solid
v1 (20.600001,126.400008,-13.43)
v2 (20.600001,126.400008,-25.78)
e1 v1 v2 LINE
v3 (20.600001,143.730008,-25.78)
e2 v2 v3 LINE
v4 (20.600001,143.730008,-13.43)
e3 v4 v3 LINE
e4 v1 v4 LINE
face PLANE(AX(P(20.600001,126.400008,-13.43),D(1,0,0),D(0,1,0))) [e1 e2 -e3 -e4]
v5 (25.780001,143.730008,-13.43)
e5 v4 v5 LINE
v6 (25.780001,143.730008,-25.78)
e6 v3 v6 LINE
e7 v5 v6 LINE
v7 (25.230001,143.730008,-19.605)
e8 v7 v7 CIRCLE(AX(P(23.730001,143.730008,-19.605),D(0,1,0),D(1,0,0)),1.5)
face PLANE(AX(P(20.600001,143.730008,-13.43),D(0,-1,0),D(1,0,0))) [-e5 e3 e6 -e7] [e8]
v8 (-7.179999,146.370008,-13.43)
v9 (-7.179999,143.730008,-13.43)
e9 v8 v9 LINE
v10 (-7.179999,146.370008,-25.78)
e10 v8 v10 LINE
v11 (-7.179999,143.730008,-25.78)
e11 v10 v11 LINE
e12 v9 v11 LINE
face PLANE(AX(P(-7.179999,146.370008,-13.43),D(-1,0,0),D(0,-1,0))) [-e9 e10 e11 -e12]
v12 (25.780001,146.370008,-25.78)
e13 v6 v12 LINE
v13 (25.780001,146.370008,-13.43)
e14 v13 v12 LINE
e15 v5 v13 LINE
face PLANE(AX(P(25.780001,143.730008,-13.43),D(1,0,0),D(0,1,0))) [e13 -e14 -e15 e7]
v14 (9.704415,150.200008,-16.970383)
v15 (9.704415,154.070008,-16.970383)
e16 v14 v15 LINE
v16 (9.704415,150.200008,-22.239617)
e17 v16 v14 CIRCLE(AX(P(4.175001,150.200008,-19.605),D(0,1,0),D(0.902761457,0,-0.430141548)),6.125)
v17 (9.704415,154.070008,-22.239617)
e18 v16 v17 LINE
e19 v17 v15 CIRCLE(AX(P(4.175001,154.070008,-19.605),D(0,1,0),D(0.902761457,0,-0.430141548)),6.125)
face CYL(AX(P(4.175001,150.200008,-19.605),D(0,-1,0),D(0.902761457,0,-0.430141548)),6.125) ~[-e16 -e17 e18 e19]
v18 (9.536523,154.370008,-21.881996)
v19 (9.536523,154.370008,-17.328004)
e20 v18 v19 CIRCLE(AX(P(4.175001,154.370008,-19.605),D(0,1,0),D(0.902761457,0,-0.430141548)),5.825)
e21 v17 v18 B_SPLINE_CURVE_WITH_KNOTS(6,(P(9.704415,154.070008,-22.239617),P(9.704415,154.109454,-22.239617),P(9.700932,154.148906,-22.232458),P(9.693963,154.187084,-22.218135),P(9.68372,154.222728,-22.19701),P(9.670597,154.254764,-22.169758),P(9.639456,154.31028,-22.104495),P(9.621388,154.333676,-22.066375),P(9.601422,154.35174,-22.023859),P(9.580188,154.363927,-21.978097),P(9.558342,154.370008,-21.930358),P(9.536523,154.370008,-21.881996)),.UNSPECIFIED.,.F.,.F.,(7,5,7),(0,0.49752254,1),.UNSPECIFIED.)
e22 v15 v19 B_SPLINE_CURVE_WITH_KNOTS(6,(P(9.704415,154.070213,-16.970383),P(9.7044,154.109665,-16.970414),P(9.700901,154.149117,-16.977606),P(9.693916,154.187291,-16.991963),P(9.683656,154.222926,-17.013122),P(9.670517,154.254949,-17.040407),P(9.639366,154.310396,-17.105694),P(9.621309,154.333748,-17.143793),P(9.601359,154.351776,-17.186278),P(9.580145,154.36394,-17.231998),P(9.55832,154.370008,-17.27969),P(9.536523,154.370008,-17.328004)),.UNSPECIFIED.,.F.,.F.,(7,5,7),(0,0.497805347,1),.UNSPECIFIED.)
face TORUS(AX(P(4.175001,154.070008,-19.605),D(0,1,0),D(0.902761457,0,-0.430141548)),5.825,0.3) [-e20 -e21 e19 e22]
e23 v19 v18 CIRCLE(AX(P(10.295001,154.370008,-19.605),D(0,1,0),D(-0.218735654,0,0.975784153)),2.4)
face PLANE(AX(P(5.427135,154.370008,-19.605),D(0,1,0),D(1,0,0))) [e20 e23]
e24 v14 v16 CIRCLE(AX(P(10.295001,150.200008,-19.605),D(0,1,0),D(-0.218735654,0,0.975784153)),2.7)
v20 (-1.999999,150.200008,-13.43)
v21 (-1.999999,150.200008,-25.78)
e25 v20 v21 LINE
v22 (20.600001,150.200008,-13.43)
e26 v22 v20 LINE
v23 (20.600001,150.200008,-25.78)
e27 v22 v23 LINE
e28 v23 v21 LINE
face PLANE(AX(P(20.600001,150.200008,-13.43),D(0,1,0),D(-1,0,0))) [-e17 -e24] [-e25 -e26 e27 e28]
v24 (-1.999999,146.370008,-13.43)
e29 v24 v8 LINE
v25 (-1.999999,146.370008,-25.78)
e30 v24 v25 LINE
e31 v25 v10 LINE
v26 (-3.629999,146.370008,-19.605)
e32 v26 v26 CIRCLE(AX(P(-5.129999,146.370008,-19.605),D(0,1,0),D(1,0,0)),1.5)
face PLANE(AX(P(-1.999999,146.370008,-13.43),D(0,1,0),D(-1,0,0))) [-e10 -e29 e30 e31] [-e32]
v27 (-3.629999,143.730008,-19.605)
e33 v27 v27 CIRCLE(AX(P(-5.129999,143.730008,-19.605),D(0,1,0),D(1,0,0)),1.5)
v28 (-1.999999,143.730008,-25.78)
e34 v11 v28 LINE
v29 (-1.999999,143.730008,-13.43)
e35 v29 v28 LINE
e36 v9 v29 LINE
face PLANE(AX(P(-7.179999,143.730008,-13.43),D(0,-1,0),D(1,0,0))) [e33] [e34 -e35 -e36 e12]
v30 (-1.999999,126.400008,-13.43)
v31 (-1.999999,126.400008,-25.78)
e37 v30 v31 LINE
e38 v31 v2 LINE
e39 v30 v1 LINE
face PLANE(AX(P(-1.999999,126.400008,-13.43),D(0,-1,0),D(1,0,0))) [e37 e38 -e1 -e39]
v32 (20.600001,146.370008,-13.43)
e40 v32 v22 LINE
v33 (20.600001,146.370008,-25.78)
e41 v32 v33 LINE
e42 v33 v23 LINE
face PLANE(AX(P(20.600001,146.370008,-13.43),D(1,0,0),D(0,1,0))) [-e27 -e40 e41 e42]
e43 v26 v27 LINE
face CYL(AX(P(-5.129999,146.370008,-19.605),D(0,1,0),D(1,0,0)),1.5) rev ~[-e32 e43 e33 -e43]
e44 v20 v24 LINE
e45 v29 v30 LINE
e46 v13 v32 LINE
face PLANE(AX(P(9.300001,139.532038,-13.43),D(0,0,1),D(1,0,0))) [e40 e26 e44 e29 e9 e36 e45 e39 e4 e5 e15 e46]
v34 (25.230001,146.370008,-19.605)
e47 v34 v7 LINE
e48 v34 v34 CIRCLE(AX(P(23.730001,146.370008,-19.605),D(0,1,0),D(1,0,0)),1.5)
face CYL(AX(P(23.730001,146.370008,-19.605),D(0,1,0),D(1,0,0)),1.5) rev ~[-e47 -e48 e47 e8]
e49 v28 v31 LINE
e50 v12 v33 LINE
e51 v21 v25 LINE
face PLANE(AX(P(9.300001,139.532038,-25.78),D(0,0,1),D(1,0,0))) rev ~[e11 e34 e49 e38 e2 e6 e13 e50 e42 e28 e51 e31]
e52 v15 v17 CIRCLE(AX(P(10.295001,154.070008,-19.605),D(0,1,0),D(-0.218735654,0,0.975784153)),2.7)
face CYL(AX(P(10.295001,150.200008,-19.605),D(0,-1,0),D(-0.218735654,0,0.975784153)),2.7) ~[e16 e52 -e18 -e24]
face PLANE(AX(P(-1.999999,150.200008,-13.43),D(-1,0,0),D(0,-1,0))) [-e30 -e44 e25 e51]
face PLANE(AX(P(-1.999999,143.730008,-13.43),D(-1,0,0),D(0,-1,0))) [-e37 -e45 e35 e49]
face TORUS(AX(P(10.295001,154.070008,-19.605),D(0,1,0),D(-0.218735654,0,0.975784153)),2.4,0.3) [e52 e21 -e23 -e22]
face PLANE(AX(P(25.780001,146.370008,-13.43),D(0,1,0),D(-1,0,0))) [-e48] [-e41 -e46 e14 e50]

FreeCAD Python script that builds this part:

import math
import FreeCAD as App
import Part
import Sketcher
Q = App.Units.Quantity


def edges_at(feature, points):
    """Names of the edges that pass closest to the given points."""
    edges = feature.Shape.Edges
    near = lambda p: min(range(len(edges)), key=lambda i: edges[i].distToShape(Part.Vertex(*p))[0])
    return sorted({f"Edge{near(p) + 1}" for p in points})

doc = App.newDocument("Part")
body = doc.addObject("PartDesign::Body", "Body")

# Sketch on XY plane
sketch1 = doc.addObject("Sketcher::SketchObject", "Sketch")
body.addObject(sketch1)
sketch1.AttachmentSupport = (doc.XY_Plane, [""])
sketch1.MapMode = "FlatFace"
sketch1.addGeometry([
    Part.LineSegment(App.Vector(22.6, 23.8, 0), App.Vector(0, 23.8, 0)),  # 0
    Part.LineSegment(App.Vector(0, 23.8, 0), App.Vector(0, 20, 0)),  # 1
    Part.LineSegment(App.Vector(0, 20, 0), App.Vector(-5.2, 20, 0)),  # 2
    Part.LineSegment(App.Vector(-5.2, 20, 0), App.Vector(-5.2, 17.3, 0)),  # 3
    Part.LineSegment(App.Vector(-5.2, 17.3, 0), App.Vector(0, 17.3, 0)),  # 4
    Part.LineSegment(App.Vector(0, 17.3, 0), App.Vector(0, 0, 0)),  # 5
    Part.LineSegment(App.Vector(0, 0, 0), App.Vector(22.6, 0, 0)),  # 6
    Part.LineSegment(App.Vector(22.6, 0, 0), App.Vector(22.6, 17.3, 0)),  # 7
    Part.LineSegment(App.Vector(22.6, 17.3, 0), App.Vector(27.8, 17.3, 0)),  # 8
    Part.LineSegment(App.Vector(27.8, 17.3, 0), App.Vector(27.8, 20, 0)),  # 9
    Part.LineSegment(App.Vector(27.8, 20, 0), App.Vector(22.6, 20, 0)),  # 10
    Part.LineSegment(App.Vector(22.6, 20, 0), App.Vector(22.6, 23.8, 0)),  # 11
], False)
sketch1.addConstraint([
    Sketcher.Constraint("Coincident", 0, 2, 1, 1),
    Sketcher.Constraint("Coincident", 1, 2, 2, 1),
    Sketcher.Constraint("Coincident", 2, 2, 3, 1),
    Sketcher.Constraint("Coincident", 3, 2, 4, 1),
    Sketcher.Constraint("Coincident", 4, 2, 5, 1),
    Sketcher.Constraint("Coincident", 5, 2, 6, 1),
    Sketcher.Constraint("Coincident", 6, 2, 7, 1),
    Sketcher.Constraint("Coincident", 7, 2, 8, 1),
    Sketcher.Constraint("Coincident", 8, 2, 9, 1),
    Sketcher.Constraint("Coincident", 9, 2, 10, 1),
    Sketcher.Constraint("Coincident", 10, 2, 11, 1),
    Sketcher.Constraint("Coincident", 11, 2, 0, 1),
    Sketcher.Constraint("Horizontal", 0),
    Sketcher.Constraint("Vertical", 1),
    Sketcher.Constraint("Horizontal", 2),
    Sketcher.Constraint("Vertical", 3),
    Sketcher.Constraint("Horizontal", 4),
    Sketcher.Constraint("Vertical", 5),
    Sketcher.Constraint("Horizontal", 6),
    Sketcher.Constraint("Vertical", 7),
    Sketcher.Constraint("Horizontal", 8),
    Sketcher.Constraint("Vertical", 9),
    Sketcher.Constraint("Horizontal", 10),
    Sketcher.Constraint("Vertical", 11),
    Sketcher.Constraint("Coincident", 5, 2, -1, 1),
    Sketcher.Constraint("PointOnObject", 0, 2, -2),
    Sketcher.Constraint("Horizontal", 4, 2, 7, 2),
    Sketcher.Constraint("Horizontal", 2, 2, 9, 2),
    Sketcher.Constraint("Vertical", 7, 2, 10, 2),
    Sketcher.Constraint("Equal", 4, 8),
    Sketcher.Constraint("DistanceX", 0, 2, 0, 1, Q("22.6 mm")),
    Sketcher.Constraint("DistanceX", 2, 2, 2, 1, Q("5.18 mm")),
    Sketcher.Constraint("DistanceY", 1, 2, 1, 1, Q("3.83 mm")),
    Sketcher.Constraint("DistanceY", 3, 2, 3, 1, Q("2.64 mm")),
    Sketcher.Constraint("DistanceY", 5, 2, 5, 1, Q("17.33 mm")),
])
pad1 = doc.addObject("PartDesign::Pad", "Pad")
body.addObject(pad1)
pad1.Profile = sketch1
pad1.Length = 12.35

# Sketch on XZ plane
sketch2 = doc.addObject("Sketcher::SketchObject", "Sketch001")
body.addObject(sketch2)
sketch2.AttachmentSupport = (doc.XZ_Plane, [""])
sketch2.MapMode = "FlatFace"
sketch2.AttachmentOffset = App.Placement(App.Vector(0, 0, -23.8), App.Rotation())
sketch2.addGeometry([
    Part.ArcOfCircle(Part.Circle(App.Vector(16.4, 6.2, 0), App.Vector(0, 0, 1), 6.1), math.radians(-155), math.radians(155)),
    Part.ArcOfCircle(Part.Circle(App.Vector(10.3, 6.2, 0), App.Vector(0, 0, 1), 2.7), math.radians(77), math.radians(283)),
], False)
sketch2.addConstraint([
    Sketcher.Constraint("Coincident", 0, 1, 1, 2),
    Sketcher.Constraint("Coincident", 1, 1, 0, 2),
    Sketcher.Constraint("Horizontal", 0, 3, 1, 3),
    Sketcher.Constraint("Radius", 1, Q("2.7 mm")),
    Sketcher.Constraint("Radius", 0, Q("6.125 mm")),
    Sketcher.Constraint("DistanceX", 1, 3, 0, 3, Q("6.12 mm")),
    Sketcher.Constraint("DistanceX", -1, 1, 0, 3, Q("16.425 mm")),
    Sketcher.Constraint("DistanceY", -1, 1, 0, 3, Q("6.175 mm")),
])
pad2 = doc.addObject("PartDesign::Pad", "Pad001")
body.addObject(pad2)
pad2.Profile = sketch2
pad2.Length = 4.17
pad2.Reversed = True

# Sketch on XZ plane
sketch3 = doc.addObject("Sketcher::SketchObject", "Sketch002")
body.addObject(sketch3)
sketch3.AttachmentSupport = (doc.XZ_Plane, [""])
sketch3.MapMode = "FlatFace"
sketch3.AttachmentOffset = App.Placement(App.Vector(0, 0, -19.97), App.Rotation())
sketch3.addGeometry([
    Part.Circle(App.Vector(25.7, 6.2, 0), App.Vector(0, 0, 1), 1.5),
    Part.Circle(App.Vector(-3.1, 6.2, 0), App.Vector(0, 0, 1), 1.5),
], False)
sketch3.addConstraint([
    Sketcher.Constraint("Equal", 0, 1),
    Sketcher.Constraint("Horizontal", 0, 3, 1, 3),
    Sketcher.Constraint("Diameter", 0, Q("3 mm")),
    Sketcher.Constraint("DistanceX", -1, 1, 0, 3, Q("25.73 mm")),
    Sketcher.Constraint("DistanceX", 1, 3, -1, 1, Q("3.13 mm")),
    Sketcher.Constraint("DistanceY", -1, 1, 0, 3, Q("6.175 mm")),
])
pocket1 = doc.addObject("PartDesign::Pocket", "Pocket")
body.addObject(pocket1)
pocket1.Profile = sketch3
pocket1.Length = 5
pocket1.Reversed = True
doc.recompute()

fillet = doc.addObject("PartDesign::Fillet", "Fillet")
body.addObject(fillet)
fillet.Base = (pocket1, edges_at(pocket1, [(22.55, 27.97, 6.175), (7.605, 27.97, 6.175)]))
fillet.Radius = 0.3
body2 = doc.addObject("PartDesign::Body", "Body001")
doc.recompute()

body.Placement = App.Placement(App.Vector(20.600001, 126.400008, -13.43), App.Rotation(App.Vector(0, 1, 0), 180))
boolean = doc.addObject("PartDesign::Boolean", "Boolean")
body2.addObject(boolean)
boolean.Type = "Fuse"
boolean.addObjects([body])

doc.recompute()
